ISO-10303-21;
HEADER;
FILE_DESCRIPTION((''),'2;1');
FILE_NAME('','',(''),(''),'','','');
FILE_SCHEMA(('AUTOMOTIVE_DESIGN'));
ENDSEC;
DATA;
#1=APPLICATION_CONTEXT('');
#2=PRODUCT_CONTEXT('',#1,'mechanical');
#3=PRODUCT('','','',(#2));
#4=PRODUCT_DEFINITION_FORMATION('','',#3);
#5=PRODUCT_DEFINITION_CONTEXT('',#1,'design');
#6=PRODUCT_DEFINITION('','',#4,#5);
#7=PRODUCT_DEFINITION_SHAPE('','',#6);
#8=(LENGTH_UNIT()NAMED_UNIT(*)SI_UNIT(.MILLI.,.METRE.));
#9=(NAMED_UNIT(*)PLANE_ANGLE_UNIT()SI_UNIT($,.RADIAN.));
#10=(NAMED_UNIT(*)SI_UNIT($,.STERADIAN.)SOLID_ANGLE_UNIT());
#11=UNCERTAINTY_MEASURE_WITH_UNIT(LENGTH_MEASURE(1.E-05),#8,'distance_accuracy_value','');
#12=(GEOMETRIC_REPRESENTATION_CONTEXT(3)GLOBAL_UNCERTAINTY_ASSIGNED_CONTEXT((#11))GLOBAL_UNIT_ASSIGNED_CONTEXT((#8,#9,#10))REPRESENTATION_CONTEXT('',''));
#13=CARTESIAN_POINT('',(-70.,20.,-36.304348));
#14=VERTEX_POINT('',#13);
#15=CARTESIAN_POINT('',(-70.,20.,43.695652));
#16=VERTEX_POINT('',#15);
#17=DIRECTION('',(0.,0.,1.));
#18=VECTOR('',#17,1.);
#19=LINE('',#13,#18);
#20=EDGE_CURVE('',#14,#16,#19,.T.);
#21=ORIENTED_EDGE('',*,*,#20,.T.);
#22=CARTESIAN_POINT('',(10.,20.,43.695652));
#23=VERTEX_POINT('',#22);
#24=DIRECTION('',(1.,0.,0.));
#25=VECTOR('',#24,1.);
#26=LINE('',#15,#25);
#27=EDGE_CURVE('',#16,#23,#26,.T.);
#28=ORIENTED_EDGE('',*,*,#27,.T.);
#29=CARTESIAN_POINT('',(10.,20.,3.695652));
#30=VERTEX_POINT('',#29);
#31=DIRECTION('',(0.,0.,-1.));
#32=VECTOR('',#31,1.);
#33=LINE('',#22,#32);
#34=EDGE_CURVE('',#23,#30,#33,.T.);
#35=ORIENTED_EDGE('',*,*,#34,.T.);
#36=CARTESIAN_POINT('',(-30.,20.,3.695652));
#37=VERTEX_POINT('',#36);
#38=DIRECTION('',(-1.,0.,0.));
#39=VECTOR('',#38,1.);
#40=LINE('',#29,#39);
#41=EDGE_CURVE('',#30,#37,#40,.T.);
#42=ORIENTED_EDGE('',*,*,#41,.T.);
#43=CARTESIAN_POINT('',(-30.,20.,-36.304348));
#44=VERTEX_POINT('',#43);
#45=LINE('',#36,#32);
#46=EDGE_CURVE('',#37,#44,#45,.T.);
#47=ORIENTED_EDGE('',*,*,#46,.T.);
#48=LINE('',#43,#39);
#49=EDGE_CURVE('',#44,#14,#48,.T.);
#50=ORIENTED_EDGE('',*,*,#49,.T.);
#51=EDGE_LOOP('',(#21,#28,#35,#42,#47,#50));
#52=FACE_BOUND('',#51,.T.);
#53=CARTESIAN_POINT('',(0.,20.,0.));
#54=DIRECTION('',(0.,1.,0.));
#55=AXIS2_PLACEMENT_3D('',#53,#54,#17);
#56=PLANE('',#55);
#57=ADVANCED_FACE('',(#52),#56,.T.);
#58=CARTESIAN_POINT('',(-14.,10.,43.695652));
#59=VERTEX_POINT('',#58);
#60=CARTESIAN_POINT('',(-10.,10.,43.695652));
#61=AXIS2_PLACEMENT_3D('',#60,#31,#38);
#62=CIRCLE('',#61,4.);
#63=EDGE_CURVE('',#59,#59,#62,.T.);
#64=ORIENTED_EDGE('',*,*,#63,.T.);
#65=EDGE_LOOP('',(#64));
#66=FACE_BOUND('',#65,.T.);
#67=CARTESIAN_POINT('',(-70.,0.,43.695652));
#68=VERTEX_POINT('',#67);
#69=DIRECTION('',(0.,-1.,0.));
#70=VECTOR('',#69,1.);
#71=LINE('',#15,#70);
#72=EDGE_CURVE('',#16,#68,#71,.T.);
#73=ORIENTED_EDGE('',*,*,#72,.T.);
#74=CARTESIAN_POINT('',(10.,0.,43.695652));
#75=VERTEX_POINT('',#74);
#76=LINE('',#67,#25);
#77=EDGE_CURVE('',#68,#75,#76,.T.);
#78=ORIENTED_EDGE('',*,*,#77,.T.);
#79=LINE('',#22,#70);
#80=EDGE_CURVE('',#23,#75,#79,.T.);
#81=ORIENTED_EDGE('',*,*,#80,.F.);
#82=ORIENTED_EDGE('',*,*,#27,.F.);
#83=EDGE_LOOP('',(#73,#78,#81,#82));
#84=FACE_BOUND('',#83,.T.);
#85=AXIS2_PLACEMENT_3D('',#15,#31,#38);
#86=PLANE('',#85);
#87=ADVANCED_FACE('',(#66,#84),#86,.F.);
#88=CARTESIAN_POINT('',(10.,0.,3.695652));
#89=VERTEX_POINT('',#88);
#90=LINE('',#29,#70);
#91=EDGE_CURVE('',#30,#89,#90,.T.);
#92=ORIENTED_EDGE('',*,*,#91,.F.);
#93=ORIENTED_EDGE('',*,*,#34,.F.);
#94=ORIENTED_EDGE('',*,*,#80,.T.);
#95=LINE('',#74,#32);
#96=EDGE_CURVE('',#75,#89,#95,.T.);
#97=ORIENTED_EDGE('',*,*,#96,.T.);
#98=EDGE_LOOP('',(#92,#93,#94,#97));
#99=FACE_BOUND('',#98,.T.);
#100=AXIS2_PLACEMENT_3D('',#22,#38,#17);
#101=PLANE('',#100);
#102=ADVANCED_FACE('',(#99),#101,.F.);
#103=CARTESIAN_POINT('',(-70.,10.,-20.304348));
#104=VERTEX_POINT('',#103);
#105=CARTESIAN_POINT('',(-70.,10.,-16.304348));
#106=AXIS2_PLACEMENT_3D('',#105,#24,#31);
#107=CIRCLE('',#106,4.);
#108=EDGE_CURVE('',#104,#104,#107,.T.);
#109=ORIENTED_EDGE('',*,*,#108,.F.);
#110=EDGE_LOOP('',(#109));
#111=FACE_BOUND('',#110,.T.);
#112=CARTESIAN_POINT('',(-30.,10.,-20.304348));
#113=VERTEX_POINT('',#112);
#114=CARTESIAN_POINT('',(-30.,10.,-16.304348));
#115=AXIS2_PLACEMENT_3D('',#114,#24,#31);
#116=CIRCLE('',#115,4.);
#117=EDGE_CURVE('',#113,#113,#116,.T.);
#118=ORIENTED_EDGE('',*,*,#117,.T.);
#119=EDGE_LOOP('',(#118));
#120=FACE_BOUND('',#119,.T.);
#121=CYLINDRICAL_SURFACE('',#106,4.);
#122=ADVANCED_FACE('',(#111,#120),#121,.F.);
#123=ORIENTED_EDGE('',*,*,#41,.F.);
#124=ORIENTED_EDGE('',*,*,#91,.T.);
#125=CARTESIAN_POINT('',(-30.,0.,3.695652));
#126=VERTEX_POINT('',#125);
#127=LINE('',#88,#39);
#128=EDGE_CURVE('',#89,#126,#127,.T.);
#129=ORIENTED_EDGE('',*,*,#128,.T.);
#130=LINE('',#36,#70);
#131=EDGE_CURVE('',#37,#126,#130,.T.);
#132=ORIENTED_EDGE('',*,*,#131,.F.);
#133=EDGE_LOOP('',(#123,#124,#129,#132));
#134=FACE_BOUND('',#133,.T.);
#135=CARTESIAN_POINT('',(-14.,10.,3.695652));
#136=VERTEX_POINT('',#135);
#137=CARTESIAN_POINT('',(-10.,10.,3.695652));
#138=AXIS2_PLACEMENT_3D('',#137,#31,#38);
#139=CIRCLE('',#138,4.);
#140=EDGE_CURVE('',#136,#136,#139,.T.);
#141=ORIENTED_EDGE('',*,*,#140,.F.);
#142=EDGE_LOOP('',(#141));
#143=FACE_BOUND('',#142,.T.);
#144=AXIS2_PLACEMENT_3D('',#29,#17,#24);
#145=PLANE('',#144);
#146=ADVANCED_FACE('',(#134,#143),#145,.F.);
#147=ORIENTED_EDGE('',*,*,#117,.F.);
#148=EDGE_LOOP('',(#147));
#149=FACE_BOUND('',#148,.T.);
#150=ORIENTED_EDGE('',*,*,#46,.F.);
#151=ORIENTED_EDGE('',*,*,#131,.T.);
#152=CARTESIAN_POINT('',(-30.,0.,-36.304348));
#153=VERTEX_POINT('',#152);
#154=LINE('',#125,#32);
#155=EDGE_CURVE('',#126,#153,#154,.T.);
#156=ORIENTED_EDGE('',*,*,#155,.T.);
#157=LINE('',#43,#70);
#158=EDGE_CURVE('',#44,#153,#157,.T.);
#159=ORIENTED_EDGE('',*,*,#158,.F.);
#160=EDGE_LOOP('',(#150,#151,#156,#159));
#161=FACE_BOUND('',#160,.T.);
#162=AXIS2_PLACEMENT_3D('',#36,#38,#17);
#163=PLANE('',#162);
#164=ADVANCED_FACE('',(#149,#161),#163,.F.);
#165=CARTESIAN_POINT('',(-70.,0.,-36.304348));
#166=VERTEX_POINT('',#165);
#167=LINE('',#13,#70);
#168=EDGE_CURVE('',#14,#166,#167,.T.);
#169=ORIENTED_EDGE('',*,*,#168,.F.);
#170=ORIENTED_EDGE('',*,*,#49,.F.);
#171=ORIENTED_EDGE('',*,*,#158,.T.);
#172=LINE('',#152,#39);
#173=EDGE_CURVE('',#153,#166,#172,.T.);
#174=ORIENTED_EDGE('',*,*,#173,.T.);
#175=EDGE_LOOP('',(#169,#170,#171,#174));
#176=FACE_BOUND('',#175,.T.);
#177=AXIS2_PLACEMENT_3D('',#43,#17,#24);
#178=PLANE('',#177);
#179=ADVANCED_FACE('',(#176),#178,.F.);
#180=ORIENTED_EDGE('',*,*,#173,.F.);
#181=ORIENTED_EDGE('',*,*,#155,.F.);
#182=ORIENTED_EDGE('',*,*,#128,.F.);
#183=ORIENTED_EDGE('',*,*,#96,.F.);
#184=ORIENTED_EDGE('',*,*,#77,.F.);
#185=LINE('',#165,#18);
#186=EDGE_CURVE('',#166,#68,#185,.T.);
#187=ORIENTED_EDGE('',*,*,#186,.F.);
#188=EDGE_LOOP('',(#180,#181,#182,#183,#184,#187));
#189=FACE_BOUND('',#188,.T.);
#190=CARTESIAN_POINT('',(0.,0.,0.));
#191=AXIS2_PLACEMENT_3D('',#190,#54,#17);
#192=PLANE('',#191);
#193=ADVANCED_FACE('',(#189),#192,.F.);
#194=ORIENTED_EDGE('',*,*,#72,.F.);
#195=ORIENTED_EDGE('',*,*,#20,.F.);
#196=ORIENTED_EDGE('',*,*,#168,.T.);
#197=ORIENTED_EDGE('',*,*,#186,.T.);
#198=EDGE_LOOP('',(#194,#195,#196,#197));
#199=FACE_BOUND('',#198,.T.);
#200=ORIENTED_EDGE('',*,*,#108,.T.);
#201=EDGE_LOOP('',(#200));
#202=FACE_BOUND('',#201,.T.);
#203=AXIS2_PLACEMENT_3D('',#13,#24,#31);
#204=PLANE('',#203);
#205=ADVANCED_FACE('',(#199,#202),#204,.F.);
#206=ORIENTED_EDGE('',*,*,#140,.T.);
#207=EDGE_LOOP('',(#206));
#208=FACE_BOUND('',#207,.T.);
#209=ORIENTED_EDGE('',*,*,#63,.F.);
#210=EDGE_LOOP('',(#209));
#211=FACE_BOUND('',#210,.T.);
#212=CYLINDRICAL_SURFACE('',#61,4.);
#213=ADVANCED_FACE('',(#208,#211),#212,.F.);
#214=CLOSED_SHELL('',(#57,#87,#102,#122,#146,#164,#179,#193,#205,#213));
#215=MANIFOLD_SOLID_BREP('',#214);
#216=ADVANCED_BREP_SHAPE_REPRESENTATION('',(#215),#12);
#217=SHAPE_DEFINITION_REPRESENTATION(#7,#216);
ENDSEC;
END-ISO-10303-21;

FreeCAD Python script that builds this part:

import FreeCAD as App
import Part
import Sketcher

V = App.Vector


def add_polygon(sketch, points):
    """Adds a closed chain of lines whose ends are joined by coincident constraints."""
    first, n = sketch.GeometryCount, len(points)
    for a, b in zip(points, points[1:] + points[:1]):
        sketch.addGeometry(Part.LineSegment(App.Vector(*a, 0), App.Vector(*b, 0)), False)
    for i in range(n):
        sketch.addConstraint(Sketcher.Constraint("Coincident", first + i, 2, first + (i + 1) % n, 1))

doc = App.newDocument("Part")
body = doc.addObject("PartDesign::Body", "Body")

# Sketch on XZ plane
sketch1 = body.newObject("Sketcher::SketchObject", "Sketch")
sketch1.AttachmentSupport = (doc.getObject("XZ_Plane"), [""])
sketch1.MapMode = "FlatFace"
add_polygon(sketch1, [(-70, -36), (-70, 44), (10, 44), (10, 4), (-30, 4), (-30, -36)])  # lines 0-5
sketch1.addConstraint(Sketcher.Constraint("Vertical", 0))
sketch1.addConstraint(Sketcher.Constraint("Horizontal", 1))
sketch1.addConstraint(Sketcher.Constraint("Vertical", 2))
sketch1.addConstraint(Sketcher.Constraint("Horizontal", 3))
sketch1.addConstraint(Sketcher.Constraint("Vertical", 4))
sketch1.addConstraint(Sketcher.Constraint("Horizontal", 5))
sketch1.addConstraint(Sketcher.Constraint("Equal", 3, 5))
sketch1.addConstraint(Sketcher.Constraint("Equal", 1, 0))
sketch1.addConstraint(Sketcher.Constraint("Equal", 5, 2))
sketch1.addConstraint(Sketcher.Constraint("DistanceX", 1, 1, 1, 2, 80.0))
sketch1.addConstraint(Sketcher.Constraint("DistanceX", 0, 2, -1, 1, 70.0))
sketch1.addConstraint(Sketcher.Constraint("DistanceY", -1, 1, 0, 2, 43.695652))
pad1 = body.newObject("PartDesign::Pad", "Pad")
pad1.Profile = sketch1
pad1.Length = 20
pad1.Reversed = True

# Sketch on YZ plane
sketch2 = body.newObject("Sketcher::SketchObject", "Sketch001")
sketch2.AttachmentSupport = (doc.getObject("YZ_Plane"), [""])
sketch2.MapMode = "FlatFace"
sketch2.AttachmentOffset = App.Placement(V(0, 0, -30), App.Rotation())
sketch2.addGeometry(Part.Circle(V(10, -16.3, 0), V(0, 0, 1), 4), False)
sketch2.addConstraint(Sketcher.Constraint("Diameter", 0, 8.0))
sketch2.addConstraint(Sketcher.Constraint("DistanceX", -1, 1, 0, 3, 10.0))
sketch2.addConstraint(Sketcher.Constraint("DistanceY", 0, 3, -1, 1, 16.304348))
pocket1 = body.newObject("PartDesign::Pocket", "Pocket")
pocket1.Profile = sketch2
pocket1.Type = "ThroughAll"

# Sketch on XY plane
sketch3 = body.newObject("Sketcher::SketchObject", "Sketch002")
sketch3.AttachmentSupport = (doc.getObject("XY_Plane"), [""])
sketch3.MapMode = "FlatFace"
sketch3.AttachmentOffset = App.Placement(V(0, 0, 3.695652), App.Rotation())
sketch3.addGeometry(Part.Circle(V(-10, 10, 0), V(0, 0, 1), 4), False)
sketch3.addConstraint(Sketcher.Constraint("Diameter", 0, 8.0))
sketch3.addConstraint(Sketcher.Constraint("DistanceX", 0, 3, -1, 1, 10.0))
sketch3.addConstraint(Sketcher.Constraint("DistanceY", -1, 1, 0, 3, 10.0))
pocket2 = body.newObject("PartDesign::Pocket", "Pocket001")
pocket2.Profile = sketch3
pocket2.Type = "ThroughAll"
pocket2.Reversed = True

doc.recompute()
